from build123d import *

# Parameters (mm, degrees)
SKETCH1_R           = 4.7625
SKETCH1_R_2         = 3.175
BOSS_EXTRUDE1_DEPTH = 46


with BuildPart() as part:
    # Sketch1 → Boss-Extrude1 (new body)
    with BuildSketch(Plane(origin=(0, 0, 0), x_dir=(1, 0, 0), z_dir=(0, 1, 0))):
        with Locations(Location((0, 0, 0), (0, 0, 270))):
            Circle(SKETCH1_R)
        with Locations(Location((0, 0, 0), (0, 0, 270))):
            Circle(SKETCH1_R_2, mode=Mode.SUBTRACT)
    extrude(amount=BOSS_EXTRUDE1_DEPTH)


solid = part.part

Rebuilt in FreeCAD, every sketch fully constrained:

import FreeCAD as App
import Part
import Sketcher

V = App.Vector
Q = App.Units.Quantity

doc = App.newDocument("Part")
body = doc.addObject("PartDesign::Body", "Body")

# Sketch on XZ plane
sketch1 = body.newObject("Sketcher::SketchObject", "Sketch")
sketch1.AttachmentSupport = (doc.getObject("XZ_Plane"), [""])
sketch1.MapMode = "FlatFace"
sketch1.addGeometry([
    Part.Circle(V(0, 0, 0), V(0, 0, 1), 4.8),
    Part.Circle(V(0, 0, 0), V(0, 0, 1), 3.2),
], False)
sketch1.addConstraint([
    Sketcher.Constraint("Coincident", 0, 3, -1, 1),
    Sketcher.Constraint("Coincident", 1, 3, -1, 1),
    Sketcher.Constraint("Diameter", 1, Q("0.25 in")),
    Sketcher.Constraint("Diameter", 0, Q("0.375 in")),
])
pad1 = body.newObject("PartDesign::Pad", "Pad")
pad1.Profile = sketch1
pad1.Length = 46
pad1.Reversed = True

doc.recompute()
